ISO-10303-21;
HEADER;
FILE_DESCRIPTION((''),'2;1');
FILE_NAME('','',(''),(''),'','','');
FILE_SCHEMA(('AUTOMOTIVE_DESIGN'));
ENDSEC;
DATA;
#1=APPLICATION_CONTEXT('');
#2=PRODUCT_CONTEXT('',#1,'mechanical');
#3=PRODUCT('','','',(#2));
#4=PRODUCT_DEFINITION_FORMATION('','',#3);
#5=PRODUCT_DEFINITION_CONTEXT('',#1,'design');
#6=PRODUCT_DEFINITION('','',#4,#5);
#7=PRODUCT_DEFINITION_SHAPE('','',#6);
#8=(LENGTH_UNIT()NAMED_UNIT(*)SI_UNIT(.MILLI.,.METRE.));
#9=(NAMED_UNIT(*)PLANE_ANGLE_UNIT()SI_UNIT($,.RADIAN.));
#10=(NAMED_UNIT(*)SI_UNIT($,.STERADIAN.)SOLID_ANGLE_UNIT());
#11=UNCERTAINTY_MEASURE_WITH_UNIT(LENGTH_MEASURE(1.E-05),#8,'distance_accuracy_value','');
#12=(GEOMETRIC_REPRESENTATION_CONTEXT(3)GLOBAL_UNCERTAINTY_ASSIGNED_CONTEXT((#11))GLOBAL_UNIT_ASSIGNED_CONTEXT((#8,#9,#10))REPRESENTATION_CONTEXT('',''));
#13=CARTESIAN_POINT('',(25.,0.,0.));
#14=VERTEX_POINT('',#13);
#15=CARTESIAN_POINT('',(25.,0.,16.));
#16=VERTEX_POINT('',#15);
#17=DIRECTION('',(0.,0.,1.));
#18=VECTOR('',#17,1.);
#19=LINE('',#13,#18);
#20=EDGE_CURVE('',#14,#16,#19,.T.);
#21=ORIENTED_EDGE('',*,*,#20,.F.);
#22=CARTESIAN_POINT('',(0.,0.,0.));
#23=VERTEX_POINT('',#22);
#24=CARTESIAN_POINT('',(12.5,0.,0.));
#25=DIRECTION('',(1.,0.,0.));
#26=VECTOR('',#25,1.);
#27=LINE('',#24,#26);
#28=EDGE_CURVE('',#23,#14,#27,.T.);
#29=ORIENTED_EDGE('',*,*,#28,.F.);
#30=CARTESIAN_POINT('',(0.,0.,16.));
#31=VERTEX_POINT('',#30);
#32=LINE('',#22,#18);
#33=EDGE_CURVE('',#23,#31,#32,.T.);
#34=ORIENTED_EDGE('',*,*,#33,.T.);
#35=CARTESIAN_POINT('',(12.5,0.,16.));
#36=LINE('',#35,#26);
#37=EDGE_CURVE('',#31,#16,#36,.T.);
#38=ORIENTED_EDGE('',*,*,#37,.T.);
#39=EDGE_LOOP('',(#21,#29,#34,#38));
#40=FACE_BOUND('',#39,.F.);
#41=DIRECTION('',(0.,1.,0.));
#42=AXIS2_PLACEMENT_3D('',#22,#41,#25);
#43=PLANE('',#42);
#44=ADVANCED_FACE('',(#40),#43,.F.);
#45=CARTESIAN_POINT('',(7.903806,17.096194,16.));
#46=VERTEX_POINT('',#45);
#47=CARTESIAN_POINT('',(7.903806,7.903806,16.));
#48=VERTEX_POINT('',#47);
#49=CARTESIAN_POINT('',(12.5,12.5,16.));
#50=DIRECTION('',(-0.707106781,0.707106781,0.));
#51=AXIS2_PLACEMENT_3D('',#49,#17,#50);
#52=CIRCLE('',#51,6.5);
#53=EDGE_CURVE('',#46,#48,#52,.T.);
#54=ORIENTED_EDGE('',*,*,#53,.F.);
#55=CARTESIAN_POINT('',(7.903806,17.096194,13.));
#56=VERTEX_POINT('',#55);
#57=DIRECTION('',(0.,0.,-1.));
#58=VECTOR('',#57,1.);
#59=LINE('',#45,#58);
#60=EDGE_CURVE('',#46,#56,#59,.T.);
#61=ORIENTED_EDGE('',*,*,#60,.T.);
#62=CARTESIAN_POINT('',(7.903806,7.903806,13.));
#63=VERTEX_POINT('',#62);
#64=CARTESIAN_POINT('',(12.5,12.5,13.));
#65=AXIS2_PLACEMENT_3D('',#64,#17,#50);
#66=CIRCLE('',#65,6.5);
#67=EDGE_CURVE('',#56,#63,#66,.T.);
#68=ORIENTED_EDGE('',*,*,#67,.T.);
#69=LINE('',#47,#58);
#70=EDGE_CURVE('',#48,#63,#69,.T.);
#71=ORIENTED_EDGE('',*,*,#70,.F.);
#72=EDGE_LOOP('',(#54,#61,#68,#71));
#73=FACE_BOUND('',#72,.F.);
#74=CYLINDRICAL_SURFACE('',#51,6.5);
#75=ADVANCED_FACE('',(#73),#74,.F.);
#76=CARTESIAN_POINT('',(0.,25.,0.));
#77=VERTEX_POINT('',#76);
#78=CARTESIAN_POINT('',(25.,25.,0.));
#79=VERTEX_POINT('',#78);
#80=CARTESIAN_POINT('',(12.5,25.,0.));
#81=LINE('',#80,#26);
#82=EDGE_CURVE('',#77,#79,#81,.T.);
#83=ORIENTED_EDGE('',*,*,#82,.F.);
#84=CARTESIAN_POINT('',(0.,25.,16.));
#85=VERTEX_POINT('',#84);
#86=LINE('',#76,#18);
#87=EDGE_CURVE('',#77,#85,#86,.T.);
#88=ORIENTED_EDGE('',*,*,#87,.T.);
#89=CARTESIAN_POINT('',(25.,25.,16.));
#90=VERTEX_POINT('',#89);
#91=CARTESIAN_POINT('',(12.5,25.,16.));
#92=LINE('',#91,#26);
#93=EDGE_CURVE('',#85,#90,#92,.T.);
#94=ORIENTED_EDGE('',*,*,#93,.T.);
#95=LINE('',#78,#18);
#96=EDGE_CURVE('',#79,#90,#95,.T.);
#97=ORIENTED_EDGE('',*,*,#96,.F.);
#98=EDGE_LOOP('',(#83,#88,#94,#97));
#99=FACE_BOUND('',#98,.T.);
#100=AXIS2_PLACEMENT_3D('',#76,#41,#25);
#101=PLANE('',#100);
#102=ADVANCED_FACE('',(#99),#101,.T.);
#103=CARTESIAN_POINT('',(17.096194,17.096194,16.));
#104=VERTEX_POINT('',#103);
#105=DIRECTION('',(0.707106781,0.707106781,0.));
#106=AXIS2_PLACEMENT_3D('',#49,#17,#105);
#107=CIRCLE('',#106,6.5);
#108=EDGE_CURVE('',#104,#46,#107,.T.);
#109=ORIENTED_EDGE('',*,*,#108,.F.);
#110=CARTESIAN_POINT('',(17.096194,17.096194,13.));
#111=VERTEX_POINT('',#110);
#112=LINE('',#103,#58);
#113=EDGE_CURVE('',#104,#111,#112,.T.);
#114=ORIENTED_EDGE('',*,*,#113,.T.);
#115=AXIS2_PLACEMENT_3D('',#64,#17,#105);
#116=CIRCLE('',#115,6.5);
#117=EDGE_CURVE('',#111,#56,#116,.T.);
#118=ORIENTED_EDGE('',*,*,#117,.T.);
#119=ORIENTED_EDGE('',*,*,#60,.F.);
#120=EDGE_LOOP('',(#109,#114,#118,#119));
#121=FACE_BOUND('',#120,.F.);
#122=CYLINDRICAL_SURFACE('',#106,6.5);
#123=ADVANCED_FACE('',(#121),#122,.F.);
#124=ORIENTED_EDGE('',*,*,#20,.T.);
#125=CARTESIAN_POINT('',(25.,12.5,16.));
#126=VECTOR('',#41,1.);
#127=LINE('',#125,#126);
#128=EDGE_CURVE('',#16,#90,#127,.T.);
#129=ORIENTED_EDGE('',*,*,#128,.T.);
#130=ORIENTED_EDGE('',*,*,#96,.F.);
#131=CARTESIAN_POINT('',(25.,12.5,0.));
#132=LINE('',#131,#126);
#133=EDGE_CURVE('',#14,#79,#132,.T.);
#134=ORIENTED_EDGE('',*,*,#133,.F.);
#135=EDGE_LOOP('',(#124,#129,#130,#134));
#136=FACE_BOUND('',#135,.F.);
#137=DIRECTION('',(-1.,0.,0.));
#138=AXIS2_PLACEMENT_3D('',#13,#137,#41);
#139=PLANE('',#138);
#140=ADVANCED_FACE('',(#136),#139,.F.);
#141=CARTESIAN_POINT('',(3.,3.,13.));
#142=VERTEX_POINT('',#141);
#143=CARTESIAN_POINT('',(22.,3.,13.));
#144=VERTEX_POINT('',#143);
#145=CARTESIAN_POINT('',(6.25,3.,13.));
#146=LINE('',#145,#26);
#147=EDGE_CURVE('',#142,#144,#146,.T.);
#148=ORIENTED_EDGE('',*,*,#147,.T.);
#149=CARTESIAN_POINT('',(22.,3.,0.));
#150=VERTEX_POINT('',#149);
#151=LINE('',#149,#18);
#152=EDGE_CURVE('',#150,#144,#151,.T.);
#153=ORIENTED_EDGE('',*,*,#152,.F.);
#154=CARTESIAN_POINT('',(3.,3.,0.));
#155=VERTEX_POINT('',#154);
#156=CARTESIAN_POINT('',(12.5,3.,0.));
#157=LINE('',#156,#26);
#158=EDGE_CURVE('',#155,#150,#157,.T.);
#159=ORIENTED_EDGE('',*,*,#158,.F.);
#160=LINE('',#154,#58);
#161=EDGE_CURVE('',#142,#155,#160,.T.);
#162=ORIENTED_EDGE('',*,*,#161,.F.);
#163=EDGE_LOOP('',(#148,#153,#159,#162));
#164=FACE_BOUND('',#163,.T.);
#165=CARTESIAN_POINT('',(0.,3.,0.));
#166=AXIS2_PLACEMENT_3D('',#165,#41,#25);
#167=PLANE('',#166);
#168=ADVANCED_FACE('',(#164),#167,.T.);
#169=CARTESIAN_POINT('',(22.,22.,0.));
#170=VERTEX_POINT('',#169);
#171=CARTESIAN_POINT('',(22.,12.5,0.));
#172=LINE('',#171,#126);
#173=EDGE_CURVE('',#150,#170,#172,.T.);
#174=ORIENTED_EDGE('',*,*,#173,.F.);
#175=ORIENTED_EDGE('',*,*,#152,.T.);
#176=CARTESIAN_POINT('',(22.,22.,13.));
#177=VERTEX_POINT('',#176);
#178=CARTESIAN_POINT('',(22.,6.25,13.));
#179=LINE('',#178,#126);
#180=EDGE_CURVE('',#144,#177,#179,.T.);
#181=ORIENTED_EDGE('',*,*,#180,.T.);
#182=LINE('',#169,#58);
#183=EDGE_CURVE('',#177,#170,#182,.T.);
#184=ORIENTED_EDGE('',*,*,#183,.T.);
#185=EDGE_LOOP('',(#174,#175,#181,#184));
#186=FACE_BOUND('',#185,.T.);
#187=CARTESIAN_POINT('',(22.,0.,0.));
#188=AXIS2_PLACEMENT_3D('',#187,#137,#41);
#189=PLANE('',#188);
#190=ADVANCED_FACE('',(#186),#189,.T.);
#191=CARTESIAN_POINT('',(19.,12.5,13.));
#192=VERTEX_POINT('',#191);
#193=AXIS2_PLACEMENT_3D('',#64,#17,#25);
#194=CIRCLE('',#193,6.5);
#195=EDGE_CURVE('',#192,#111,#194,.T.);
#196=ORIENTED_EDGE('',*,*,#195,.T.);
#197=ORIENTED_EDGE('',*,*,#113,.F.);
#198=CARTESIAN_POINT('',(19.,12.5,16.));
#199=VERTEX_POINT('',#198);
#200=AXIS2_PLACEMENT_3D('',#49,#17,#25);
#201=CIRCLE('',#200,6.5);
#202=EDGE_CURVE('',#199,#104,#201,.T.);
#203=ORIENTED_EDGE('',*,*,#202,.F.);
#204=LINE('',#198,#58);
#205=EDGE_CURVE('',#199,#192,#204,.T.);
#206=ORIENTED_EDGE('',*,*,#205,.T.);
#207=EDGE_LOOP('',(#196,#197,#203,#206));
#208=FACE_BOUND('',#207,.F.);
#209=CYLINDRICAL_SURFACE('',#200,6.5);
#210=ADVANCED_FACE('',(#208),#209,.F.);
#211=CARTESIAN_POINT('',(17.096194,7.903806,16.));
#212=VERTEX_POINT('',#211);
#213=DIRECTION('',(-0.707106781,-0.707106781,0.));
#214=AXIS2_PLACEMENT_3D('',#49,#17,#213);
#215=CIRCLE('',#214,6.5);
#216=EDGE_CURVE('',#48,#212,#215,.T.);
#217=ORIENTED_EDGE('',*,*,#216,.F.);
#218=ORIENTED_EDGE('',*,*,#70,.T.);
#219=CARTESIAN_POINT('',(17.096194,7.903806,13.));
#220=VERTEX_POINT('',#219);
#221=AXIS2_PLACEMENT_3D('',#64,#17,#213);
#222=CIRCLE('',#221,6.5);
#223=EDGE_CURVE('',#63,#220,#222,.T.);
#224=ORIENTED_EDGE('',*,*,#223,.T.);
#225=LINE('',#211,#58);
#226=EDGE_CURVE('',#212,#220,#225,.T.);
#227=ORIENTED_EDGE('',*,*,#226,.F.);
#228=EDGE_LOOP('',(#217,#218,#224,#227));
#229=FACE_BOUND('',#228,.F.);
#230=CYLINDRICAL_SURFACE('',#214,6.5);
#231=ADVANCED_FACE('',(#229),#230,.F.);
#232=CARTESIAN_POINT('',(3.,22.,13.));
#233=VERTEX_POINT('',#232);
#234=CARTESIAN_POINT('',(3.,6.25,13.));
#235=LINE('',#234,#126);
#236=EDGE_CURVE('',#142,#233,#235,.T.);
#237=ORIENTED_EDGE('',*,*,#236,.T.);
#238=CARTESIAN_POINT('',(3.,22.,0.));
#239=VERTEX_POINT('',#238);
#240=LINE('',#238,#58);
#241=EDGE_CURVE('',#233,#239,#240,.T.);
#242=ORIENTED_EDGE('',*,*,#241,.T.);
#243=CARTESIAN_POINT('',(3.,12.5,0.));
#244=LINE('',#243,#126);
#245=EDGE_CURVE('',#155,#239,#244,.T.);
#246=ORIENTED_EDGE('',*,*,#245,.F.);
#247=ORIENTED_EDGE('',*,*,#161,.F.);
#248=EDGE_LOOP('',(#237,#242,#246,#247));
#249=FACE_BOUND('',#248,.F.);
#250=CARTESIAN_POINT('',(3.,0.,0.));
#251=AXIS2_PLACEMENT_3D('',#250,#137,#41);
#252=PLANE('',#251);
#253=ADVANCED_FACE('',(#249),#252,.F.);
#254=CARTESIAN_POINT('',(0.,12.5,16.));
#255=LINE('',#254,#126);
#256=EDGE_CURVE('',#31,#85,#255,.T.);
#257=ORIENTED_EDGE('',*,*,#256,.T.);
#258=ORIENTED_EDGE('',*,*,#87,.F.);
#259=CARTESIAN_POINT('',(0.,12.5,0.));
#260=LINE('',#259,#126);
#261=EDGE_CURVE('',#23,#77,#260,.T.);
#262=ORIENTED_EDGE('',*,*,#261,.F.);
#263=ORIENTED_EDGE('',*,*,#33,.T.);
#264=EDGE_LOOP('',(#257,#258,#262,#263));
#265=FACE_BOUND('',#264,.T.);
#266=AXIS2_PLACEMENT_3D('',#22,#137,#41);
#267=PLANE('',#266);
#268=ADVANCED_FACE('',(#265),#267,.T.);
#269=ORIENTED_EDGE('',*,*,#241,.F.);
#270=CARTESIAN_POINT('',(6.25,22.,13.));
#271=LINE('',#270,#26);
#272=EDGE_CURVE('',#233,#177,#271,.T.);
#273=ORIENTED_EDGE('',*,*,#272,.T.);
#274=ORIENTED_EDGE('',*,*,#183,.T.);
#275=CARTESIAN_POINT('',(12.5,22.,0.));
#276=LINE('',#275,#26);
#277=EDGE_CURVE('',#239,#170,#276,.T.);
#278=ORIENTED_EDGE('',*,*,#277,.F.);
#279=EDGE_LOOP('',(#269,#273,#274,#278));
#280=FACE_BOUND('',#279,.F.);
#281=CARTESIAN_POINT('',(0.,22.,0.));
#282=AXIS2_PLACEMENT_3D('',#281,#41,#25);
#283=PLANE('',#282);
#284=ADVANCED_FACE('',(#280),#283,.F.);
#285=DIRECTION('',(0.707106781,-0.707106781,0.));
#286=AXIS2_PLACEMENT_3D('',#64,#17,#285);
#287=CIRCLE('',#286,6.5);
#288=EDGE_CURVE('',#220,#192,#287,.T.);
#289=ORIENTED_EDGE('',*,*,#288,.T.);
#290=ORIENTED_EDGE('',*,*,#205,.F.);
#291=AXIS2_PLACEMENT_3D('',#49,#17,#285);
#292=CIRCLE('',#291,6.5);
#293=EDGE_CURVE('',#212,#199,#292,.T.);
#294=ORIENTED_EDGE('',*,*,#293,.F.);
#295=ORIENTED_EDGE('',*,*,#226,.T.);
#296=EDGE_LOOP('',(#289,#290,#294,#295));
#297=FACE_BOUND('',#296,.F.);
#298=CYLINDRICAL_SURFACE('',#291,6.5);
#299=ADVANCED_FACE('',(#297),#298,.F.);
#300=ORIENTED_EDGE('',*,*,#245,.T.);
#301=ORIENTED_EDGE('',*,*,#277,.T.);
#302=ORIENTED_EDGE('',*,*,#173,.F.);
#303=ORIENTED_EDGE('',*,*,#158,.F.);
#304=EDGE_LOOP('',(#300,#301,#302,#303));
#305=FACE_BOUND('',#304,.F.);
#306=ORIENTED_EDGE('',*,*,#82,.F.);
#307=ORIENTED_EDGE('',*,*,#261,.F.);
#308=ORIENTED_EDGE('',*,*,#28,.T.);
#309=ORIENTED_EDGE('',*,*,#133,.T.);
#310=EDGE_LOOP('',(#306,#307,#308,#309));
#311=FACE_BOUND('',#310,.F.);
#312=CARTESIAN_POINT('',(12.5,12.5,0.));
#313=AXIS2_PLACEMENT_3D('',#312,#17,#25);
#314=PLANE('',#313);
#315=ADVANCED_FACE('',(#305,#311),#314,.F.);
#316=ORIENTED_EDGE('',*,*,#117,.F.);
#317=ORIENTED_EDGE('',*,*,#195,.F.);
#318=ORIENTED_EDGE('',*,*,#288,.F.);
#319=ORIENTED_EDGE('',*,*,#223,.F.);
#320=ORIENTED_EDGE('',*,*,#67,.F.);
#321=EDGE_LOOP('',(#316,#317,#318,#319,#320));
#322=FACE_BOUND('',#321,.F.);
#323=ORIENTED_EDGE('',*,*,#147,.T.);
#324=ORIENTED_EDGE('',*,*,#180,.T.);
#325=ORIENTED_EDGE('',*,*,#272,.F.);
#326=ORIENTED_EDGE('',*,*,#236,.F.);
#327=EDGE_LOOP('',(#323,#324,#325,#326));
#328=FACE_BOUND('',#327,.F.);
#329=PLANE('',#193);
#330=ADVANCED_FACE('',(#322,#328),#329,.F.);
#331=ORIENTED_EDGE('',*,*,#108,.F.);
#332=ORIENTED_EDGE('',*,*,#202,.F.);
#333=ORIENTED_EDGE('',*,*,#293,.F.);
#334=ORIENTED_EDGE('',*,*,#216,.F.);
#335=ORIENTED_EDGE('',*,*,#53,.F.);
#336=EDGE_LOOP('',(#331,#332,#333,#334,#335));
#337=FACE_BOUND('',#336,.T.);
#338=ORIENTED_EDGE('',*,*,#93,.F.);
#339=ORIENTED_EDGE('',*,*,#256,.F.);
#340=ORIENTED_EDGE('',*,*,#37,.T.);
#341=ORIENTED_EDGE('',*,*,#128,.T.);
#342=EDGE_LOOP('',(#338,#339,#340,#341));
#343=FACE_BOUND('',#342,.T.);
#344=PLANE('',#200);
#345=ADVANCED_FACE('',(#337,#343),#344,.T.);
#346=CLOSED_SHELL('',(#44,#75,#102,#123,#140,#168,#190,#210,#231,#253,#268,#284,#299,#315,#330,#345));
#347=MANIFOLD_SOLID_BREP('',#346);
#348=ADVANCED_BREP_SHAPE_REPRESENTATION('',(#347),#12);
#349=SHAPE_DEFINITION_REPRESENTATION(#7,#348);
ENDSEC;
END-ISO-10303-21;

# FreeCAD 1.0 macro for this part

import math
import FreeCAD as App
import Part
import Sketcher
from FreeCAD import Vector
Q = App.Units.Quantity


def faces_at(feature, points):
    """Names of the faces that lie closest to the given points."""
    faces = feature.Shape.Faces
    near = lambda p: min(range(len(faces)), key=lambda i: faces[i].distToShape(Part.Vertex(*p))[0])
    return sorted({f"Face{near(p) + 1}" for p in points})


def add_polygon(sketch, points):
    """Adds a closed chain of lines whose ends are joined by coincident constraints."""
    first, n = sketch.GeometryCount, len(points)
    for a, b in zip(points, points[1:] + points[:1]):
        sketch.addGeometry(Part.LineSegment(App.Vector(*a, 0), App.Vector(*b, 0)), False)
    for i in range(n):
        sketch.addConstraint(Sketcher.Constraint("Coincident", first + i, 2, first + (i + 1) % n, 1))

doc = App.newDocument("Part")
body = doc.addObject("PartDesign::Body", "Body")

sketch1 = body.newObject("Sketcher::SketchObject", "Sketch")
sketch1.AttachmentSupport = (doc.getObject("XY_Plane"), [""])
sketch1.MapMode = "FlatFace"
add_polygon(sketch1, [(0, 25), (0, 0), (25, 0), (25, 25)])
sketch1.addConstraint([
    Sketcher.Constraint("Vertical", 0),
    Sketcher.Constraint("Horizontal", 1),
    Sketcher.Constraint("Vertical", 2),
    Sketcher.Constraint("Horizontal", 3),
    Sketcher.Constraint("Coincident", 0, 2, -1, 1),
    Sketcher.Constraint("Equal", 3, 0),
    Sketcher.Constraint("DistanceX", 1, 1, 1, 2, Q("25 mm")),
])
pad1 = body.newObject("PartDesign::Pad", "Pad")
pad1.Profile = sketch1
pad1.Length = 16
doc.recompute()

thickness = body.newObject("PartDesign::Thickness", "Thickness")
thickness.Base = (pad1, faces_at(pad1, [(12.5, 12.5, 0)]))
thickness.Value = 3
thickness.Reversed = True
thickness.Join = "Arc"

sketch2 = body.newObject("Sketcher::SketchObject", "Sketch001")
sketch2.AttachmentSupport = (doc.getObject("XY_Plane"), [""])
sketch2.MapMode = "FlatFace"
sketch2.AttachmentOffset = App.Placement(Vector(0, 0, 16), App.Rotation())
sketch2.addGeometry([
    Part.ArcOfCircle(Part.Circle(Vector(12.5, 12.5, 0), Vector(0, 0, 1), 6.5), math.radians(45), math.radians(135)),
    Part.ArcOfCircle(Part.Circle(Vector(12.5, 12.5, 0), Vector(0, 0, 1), 6.5), math.radians(135), math.radians(225)),
    Part.ArcOfCircle(Part.Circle(Vector(12.5, 12.5, 0), Vector(0, 0, 1), 6.5), math.radians(-135), math.radians(-45)),
    Part.ArcOfCircle(Part.Circle(Vector(12.5, 12.5, 0), Vector(0, 0, 1), 6.5), math.radians(-45), math.radians(0)),
    Part.ArcOfCircle(Part.Circle(Vector(12.5, 12.5, 0), Vector(0, 0, 1), 6.5), math.radians(0), math.radians(45)),
], False)
sketch2.addConstraint([
    Sketcher.Constraint("Tangent", 0, 2, 1, 1),
    Sketcher.Constraint("Tangent", 1, 2, 2, 1),
    Sketcher.Constraint("Tangent", 2, 2, 3, 1),
    Sketcher.Constraint("Tangent", 3, 2, 4, 1),
    Sketcher.Constraint("Tangent", 4, 2, 0, 1),
    Sketcher.Constraint("Coincident", 2, 3, 0, 3),
    Sketcher.Constraint("Horizontal", 1, 2, 2, 2),
    Sketcher.Constraint("Horizontal", 4, 3, 3, 2),
    Sketcher.Constraint("Horizontal", 0, 2, 4, 2),
    Sketcher.Constraint("Vertical", 0, 2, 1, 2),
    Sketcher.Constraint("Radius", 0, Q("6.5 mm")),
    Sketcher.Constraint("DistanceX", -1, 1, 3, 2, Q("19 mm")),
    Sketcher.Constraint("DistanceY", -1, 1, 0, 3, Q("12.5 mm")),
    Sketcher.Constraint("DistanceX", -1, 1, 0, 2, Q("7.903806 mm")),
])
pocket1 = body.newObject("PartDesign::Pocket", "Pocket")
pocket1.Profile = sketch2
pocket1.Length = 25

doc.recompute()
